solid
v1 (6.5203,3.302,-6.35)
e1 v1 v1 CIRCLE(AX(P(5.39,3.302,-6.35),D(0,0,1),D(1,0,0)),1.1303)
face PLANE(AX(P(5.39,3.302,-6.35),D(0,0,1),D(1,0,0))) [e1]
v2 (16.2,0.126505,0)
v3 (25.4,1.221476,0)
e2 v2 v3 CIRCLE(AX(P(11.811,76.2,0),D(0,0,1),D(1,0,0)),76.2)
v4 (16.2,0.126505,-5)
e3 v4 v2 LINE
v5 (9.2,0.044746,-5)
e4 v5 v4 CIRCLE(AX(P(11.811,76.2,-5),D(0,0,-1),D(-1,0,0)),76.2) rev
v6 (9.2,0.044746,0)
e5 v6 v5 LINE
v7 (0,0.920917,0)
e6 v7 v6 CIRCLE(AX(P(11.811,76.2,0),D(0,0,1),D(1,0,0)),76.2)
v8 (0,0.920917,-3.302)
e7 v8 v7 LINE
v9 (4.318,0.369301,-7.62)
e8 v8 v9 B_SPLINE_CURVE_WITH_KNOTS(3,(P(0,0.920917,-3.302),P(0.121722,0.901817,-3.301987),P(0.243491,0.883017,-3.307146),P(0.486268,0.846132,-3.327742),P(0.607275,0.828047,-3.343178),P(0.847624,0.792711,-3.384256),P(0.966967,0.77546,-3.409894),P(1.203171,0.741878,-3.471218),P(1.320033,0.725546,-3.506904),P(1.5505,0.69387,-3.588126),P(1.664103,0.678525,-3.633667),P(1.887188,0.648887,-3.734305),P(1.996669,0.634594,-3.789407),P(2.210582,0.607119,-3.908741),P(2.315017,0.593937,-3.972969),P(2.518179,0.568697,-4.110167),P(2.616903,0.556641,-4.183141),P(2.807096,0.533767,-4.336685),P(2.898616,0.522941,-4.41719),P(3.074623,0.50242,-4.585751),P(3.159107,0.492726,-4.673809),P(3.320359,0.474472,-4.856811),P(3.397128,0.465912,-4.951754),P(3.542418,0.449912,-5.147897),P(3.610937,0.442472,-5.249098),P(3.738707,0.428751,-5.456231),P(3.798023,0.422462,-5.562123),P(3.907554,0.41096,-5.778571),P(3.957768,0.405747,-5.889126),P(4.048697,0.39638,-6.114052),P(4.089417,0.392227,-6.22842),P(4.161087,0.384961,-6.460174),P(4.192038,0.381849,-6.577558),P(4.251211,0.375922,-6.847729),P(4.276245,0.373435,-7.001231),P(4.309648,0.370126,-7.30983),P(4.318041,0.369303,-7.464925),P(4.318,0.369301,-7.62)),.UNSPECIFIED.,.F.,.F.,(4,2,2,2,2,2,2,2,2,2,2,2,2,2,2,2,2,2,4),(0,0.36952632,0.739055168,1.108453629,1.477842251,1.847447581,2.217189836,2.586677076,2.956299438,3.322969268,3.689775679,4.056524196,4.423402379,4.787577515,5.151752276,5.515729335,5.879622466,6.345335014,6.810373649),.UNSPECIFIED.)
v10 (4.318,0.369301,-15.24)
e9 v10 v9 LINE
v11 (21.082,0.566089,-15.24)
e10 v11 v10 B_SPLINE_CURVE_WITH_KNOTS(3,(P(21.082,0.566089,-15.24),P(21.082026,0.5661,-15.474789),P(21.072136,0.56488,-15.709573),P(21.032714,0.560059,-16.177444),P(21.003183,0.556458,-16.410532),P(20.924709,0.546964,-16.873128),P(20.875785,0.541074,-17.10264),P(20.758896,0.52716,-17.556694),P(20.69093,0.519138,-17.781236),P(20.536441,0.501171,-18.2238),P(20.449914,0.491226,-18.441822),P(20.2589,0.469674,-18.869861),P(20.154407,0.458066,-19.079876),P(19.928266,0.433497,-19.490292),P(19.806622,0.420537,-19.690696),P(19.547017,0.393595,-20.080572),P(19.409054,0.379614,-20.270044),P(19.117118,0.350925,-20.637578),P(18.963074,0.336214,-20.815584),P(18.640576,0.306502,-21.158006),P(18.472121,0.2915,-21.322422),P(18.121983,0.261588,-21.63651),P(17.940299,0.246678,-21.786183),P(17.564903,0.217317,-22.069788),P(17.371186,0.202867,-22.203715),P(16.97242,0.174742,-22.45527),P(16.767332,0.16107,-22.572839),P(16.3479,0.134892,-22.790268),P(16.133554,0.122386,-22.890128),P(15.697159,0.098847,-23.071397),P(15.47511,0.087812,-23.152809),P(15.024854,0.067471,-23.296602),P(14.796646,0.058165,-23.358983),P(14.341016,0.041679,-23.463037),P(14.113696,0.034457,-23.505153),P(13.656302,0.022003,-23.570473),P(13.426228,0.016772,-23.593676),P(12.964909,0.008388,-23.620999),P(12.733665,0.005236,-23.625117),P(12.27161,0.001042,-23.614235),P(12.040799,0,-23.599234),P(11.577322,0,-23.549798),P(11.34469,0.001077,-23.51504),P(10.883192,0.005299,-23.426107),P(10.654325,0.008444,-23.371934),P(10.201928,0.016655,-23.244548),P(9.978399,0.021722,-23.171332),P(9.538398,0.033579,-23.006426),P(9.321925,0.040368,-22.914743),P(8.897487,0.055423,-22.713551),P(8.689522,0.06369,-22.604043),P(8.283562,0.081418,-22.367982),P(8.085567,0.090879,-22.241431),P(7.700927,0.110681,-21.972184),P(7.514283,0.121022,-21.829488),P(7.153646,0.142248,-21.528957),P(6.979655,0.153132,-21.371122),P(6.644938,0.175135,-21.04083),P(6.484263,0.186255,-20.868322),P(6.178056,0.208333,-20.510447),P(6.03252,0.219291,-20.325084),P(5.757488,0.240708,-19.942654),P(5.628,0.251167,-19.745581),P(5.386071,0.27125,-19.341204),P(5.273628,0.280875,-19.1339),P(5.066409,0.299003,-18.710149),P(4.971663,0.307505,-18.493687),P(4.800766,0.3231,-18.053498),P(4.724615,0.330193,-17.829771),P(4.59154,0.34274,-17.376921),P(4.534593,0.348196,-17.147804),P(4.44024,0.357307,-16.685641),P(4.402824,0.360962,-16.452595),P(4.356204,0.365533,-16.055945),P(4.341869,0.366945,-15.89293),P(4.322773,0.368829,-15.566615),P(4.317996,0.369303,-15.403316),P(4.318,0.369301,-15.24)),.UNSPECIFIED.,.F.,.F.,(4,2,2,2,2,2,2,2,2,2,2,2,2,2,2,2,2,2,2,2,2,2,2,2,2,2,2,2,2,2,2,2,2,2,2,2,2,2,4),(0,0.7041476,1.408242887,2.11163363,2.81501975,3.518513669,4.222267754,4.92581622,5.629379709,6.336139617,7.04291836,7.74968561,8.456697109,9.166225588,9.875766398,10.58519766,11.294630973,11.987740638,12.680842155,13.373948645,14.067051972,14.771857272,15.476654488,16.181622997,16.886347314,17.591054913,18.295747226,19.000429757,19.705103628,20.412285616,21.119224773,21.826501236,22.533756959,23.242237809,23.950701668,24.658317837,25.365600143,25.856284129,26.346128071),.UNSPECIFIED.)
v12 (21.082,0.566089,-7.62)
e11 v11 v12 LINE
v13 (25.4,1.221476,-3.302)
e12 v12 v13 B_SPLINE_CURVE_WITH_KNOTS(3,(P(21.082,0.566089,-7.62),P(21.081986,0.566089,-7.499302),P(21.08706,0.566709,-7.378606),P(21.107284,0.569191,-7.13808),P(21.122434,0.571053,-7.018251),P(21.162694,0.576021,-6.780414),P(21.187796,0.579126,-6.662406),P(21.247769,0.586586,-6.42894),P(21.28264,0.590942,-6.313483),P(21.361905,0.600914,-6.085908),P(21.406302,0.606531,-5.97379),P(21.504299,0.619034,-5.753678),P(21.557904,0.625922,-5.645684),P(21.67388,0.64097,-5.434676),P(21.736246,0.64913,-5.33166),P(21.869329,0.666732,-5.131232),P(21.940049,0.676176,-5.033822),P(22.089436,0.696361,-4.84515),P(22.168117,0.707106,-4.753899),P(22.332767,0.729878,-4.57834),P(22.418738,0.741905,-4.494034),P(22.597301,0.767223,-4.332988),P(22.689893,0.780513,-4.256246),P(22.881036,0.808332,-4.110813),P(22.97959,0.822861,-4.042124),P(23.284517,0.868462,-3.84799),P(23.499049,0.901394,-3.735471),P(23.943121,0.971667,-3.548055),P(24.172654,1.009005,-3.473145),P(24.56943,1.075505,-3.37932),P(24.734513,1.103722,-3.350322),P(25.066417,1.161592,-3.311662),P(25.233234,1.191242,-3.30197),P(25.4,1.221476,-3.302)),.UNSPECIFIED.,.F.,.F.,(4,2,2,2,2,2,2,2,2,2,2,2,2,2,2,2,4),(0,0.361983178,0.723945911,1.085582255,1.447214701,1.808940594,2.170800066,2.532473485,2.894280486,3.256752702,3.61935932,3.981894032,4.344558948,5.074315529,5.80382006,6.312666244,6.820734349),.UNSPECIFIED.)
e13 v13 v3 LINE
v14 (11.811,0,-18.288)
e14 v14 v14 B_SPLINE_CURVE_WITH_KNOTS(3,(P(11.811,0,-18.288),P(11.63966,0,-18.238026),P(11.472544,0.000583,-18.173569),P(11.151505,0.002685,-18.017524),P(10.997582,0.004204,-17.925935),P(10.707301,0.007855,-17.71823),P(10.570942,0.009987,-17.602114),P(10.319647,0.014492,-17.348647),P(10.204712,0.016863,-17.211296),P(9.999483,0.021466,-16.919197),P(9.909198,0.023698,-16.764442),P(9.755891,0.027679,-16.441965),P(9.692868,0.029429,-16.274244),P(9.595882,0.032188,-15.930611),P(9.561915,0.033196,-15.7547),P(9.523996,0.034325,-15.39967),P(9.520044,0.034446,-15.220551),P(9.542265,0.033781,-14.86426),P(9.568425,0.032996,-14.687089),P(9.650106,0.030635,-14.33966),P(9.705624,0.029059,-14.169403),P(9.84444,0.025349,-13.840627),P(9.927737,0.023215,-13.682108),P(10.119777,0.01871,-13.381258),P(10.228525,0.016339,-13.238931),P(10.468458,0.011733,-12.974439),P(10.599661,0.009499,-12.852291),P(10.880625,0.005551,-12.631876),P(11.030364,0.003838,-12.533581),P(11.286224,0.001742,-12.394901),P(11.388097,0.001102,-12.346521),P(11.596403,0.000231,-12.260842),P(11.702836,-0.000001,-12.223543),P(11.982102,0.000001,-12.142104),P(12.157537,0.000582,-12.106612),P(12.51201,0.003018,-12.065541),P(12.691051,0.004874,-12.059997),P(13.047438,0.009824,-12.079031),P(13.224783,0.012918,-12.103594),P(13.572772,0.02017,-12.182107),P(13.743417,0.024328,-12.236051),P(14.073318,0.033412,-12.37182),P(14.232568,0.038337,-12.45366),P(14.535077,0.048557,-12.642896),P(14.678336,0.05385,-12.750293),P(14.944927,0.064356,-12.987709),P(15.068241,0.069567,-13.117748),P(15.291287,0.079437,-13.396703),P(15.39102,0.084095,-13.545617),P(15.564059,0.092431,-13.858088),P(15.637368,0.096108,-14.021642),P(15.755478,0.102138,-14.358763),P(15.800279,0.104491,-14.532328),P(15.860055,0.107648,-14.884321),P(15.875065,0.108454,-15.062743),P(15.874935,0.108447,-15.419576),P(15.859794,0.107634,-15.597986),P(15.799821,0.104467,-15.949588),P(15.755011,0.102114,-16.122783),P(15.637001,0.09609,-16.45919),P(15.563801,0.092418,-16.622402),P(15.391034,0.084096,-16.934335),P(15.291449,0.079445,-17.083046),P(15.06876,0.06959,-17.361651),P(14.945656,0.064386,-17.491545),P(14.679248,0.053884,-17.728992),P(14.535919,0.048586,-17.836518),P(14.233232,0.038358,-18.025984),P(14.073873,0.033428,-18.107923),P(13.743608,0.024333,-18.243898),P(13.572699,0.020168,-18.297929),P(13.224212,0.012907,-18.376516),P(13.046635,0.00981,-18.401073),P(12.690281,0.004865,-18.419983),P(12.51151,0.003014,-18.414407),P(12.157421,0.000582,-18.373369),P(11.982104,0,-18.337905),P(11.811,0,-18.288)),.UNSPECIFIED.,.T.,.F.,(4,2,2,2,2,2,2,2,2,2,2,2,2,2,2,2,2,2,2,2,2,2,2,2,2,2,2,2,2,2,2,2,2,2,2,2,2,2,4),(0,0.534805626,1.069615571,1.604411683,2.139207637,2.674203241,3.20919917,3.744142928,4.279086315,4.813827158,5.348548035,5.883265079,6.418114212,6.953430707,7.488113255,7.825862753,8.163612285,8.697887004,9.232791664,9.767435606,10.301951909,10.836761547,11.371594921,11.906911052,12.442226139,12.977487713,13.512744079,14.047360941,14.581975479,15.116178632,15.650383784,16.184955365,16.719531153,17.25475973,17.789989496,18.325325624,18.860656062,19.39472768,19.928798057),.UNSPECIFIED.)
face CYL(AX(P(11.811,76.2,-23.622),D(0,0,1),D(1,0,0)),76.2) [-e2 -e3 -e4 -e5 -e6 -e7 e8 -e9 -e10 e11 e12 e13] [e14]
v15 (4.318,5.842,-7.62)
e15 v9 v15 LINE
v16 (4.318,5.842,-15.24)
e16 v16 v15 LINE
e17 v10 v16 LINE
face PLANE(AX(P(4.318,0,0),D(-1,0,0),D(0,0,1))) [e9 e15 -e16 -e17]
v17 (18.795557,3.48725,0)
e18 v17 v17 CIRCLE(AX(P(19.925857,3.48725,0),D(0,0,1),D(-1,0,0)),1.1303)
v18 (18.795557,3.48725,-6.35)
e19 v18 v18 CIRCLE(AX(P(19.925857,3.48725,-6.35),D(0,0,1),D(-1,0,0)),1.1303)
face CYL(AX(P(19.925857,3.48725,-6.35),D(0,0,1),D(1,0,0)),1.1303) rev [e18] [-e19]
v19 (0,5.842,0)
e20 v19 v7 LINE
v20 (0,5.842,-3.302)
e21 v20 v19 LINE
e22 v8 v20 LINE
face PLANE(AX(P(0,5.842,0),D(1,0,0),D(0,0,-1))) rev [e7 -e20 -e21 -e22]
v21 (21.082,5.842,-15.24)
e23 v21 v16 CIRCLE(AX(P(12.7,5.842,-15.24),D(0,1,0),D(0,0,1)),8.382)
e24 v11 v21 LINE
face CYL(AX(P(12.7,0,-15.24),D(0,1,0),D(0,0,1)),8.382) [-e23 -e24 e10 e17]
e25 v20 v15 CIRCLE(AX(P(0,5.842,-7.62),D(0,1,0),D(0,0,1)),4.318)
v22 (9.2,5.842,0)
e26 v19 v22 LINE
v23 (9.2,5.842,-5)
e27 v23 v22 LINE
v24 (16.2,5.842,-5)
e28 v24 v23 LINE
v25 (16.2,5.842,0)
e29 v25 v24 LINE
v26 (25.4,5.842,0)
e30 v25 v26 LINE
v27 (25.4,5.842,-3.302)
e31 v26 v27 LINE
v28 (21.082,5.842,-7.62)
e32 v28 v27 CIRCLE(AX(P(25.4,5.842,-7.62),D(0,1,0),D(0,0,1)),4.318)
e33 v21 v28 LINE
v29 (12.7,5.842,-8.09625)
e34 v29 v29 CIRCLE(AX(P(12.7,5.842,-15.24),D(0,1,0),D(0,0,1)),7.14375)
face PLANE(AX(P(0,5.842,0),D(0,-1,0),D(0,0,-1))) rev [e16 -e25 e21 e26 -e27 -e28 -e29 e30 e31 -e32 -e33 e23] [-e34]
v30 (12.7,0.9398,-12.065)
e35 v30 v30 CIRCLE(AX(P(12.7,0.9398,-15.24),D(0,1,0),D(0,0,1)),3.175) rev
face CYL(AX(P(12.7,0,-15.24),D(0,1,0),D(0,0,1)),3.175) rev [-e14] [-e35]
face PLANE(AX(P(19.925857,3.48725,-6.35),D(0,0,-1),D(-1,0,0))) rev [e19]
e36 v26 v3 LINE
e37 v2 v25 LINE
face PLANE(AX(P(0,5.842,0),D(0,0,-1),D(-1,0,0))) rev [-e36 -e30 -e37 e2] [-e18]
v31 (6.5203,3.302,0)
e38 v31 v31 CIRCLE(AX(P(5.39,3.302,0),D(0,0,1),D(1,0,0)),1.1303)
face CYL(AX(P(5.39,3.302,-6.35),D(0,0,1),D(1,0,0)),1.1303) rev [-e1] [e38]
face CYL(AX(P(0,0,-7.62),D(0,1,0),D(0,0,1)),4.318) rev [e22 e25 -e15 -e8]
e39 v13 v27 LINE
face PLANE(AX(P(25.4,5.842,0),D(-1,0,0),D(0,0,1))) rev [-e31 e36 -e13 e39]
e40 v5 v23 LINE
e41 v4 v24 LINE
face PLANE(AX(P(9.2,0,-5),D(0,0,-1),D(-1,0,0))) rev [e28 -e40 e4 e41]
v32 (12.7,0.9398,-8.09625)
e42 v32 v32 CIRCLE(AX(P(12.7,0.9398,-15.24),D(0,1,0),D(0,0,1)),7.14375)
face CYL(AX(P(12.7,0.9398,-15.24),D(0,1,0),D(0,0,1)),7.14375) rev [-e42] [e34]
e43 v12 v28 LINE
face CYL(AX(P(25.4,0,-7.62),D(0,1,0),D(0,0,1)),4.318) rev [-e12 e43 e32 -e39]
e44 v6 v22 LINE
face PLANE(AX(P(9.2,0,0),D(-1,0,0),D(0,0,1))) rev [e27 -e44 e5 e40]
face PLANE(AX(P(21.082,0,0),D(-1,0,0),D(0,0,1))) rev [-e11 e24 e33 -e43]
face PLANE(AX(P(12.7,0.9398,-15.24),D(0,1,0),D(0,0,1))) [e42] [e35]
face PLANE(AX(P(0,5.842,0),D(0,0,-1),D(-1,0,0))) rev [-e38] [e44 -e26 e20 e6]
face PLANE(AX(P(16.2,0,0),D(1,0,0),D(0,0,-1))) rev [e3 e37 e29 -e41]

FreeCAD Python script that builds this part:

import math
import FreeCAD as App
import Part
import Sketcher
from FreeCAD import Vector
Q = App.Units.Quantity

doc = App.newDocument("Part")
body = doc.addObject("PartDesign::Body", "Body")

# Sketch on XZ plane
sketch1 = body.newObject("Sketcher::SketchObject", "Sketch")
sketch1.AttachmentSupport = (doc.getObject("XZ_Plane"), [""])
sketch1.MapMode = "FlatFace"
sketch1.addGeometry([
    Part.LineSegment(Vector(0, -24, 0), Vector(0, 0, 0)),
    Part.LineSegment(Vector(0, 0, 0), Vector(25, 0, 0)),
    Part.LineSegment(Vector(25, 0, 0), Vector(25, -24, 0)),
    Part.LineSegment(Vector(25, -24, 0), Vector(0, -24, 0)),
], False)
sketch1.addConstraint([
    Sketcher.Constraint("Coincident", 0, 2, 1, 1),
    Sketcher.Constraint("Coincident", 1, 2, 2, 1),
    Sketcher.Constraint("Coincident", 2, 2, 3, 1),
    Sketcher.Constraint("Coincident", 3, 2, 0, 1),
    Sketcher.Constraint("Vertical", 0),
    Sketcher.Constraint("Horizontal", 1),
    Sketcher.Constraint("Vertical", 2),
    Sketcher.Constraint("Horizontal", 3),
    Sketcher.Constraint("Coincident", 0, 2, -1, 1),
    Sketcher.Constraint("DistanceX", 1, 1, 1, 2, Q("1 in")),
    Sketcher.Constraint("DistanceY", 0, 1, 0, 2, Q("0.93 in")),
])
pad1 = body.newObject("PartDesign::Pad", "Pad")
pad1.Profile = sketch1
pad1.Length = Q("0.23 in")
pad1.Reversed = True

# Sketch on XZ plane
sketch2 = body.newObject("Sketcher::SketchObject", "Sketch001")
sketch2.AttachmentSupport = (doc.getObject("XZ_Plane"), [""])
sketch2.MapMode = "FlatFace"
sketch2.AttachmentOffset = App.Placement(Vector(0, 0, -0.23 * 25.4), App.Rotation())
sketch2.addGeometry(Part.Circle(Vector(12.7, -15.2, 0), Vector(0, 0, 1), 3.2), False)
sketch2.addConstraint([
    Sketcher.Constraint("Diameter", 0, Q("0.25 in")),
    Sketcher.Constraint("DistanceX", -1, 1, 0, 3, Q("0.5 in")),
    Sketcher.Constraint("DistanceY", 0, 3, -1, 1, Q("0.6 in")),
])
pocket1 = body.newObject("PartDesign::Pocket", "Pocket")
pocket1.Profile = sketch2
pocket1.Type = "ThroughAll"
pocket1.Reversed = True

# Sketch on XZ plane
sketch3 = body.newObject("Sketcher::SketchObject", "Sketch002")
sketch3.AttachmentSupport = (doc.getObject("XZ_Plane"), [""])
sketch3.MapMode = "FlatFace"
sketch3.AttachmentOffset = App.Placement(Vector(0, 0, -0.23 * 25.4), App.Rotation())
sketch3.addGeometry(Part.Circle(Vector(13, -15, 0), Vector(0, 0, 1), 7), False)
sketch3.addConstraint([
    Sketcher.Constraint("Diameter", 0, Q("0.5625 in")),
    Sketcher.Constraint("DistanceX", -1, 1, 0, 3, Q("0.5 in")),
    Sketcher.Constraint("DistanceY", 0, 3, -1, 1, Q("0.6 in")),
])
pocket2 = body.newObject("PartDesign::Pocket", "Pocket001")
pocket2.Profile = sketch3
pocket2.Length = Q("0.193 in")
pocket2.Reversed = True

# Sketch on XZ plane
sketch4 = body.newObject("Sketcher::SketchObject", "Sketch003")
sketch4.AttachmentSupport = (doc.getObject("XZ_Plane"), [""])
sketch4.MapMode = "FlatFace"
sketch4.AttachmentOffset = App.Placement(Vector(0, 0, -0.23 * 25.4), App.Rotation())
sketch4.addGeometry([
    Part.ArcOfCircle(Part.Circle(Vector(12.7, -15.2, 0), Vector(0, 0, 1), 8.4), math.radians(180), math.radians(270)),  # 0
    Part.LineSegment(Vector(12.7, -23.6, 0), Vector(0, -23.6, 0)),  # 1
    Part.LineSegment(Vector(0, -23.6, 0), Vector(0, -3.3, 0)),  # 2
    Part.ArcOfCircle(Part.Circle(Vector(0, -7.6, 0), Vector(0, 0, 1), 4.3), math.radians(0), math.radians(90)),  # 3
    Part.LineSegment(Vector(4.3, -7.6, 0), Vector(4.3, -15.2, 0)),  # 4
    Part.ArcOfCircle(Part.Circle(Vector(12.7, -15.2, 0), Vector(0, 0, 1), 8.4), math.radians(-90), math.radians(0)),  # 5
    Part.LineSegment(Vector(21.1, -15.2, 0), Vector(21.1, -7.6, 0)),  # 6
    Part.ArcOfCircle(Part.Circle(Vector(25.4, -7.6, 0), Vector(0, 0, 1), 4.3), math.radians(90), math.radians(180)),  # 7
    Part.LineSegment(Vector(25.4, -3.3, 0), Vector(25.4, -23.6, 0)),  # 8
    Part.LineSegment(Vector(25.4, -23.6, 0), Vector(12.7, -23.6, 0)),  # 9
], False)
sketch4.addConstraint([
    Sketcher.Constraint("Tangent", 0, 2, 1, 1),
    Sketcher.Constraint("Coincident", 1, 2, 2, 1),
    Sketcher.Constraint("Coincident", 2, 2, 3, 2),
    Sketcher.Constraint("Tangent", 3, 1, 4, 1),
    Sketcher.Constraint("Tangent", 4, 2, 0, 1),
    Sketcher.Constraint("Tangent", 5, 2, 6, 1),
    Sketcher.Constraint("Tangent", 6, 2, 7, 2),
    Sketcher.Constraint("Coincident", 7, 1, 8, 1),
    Sketcher.Constraint("Coincident", 8, 2, 9, 1),
    Sketcher.Constraint("Tangent", 9, 2, 5, 1),
    Sketcher.Constraint("Horizontal", 1),
    Sketcher.Constraint("Vertical", 2),
    Sketcher.Constraint("Vertical", 4),
    Sketcher.Constraint("Vertical", 6),
    Sketcher.Constraint("Vertical", 8),
    Sketcher.Constraint("Horizontal", 9),
    Sketcher.Constraint("Coincident", 5, 3, 0, 3),
    Sketcher.Constraint("Equal", 0, 5),
    Sketcher.Constraint("Equal", 3, 7),
    Sketcher.Constraint("PointOnObject", 3, 3, -2),
    Sketcher.Constraint("PointOnObject", 1, 2, -2),
    Sketcher.Constraint("Horizontal", 3, 3, 7, 3),
    Sketcher.Constraint("Equal", 1, 9),
    Sketcher.Constraint("Radius", 0, Q("0.33 in")),
    Sketcher.Constraint("Radius", 3, Q("0.17 in")),
    Sketcher.Constraint("DistanceY", 2, 1, 2, 2, Q("0.8 in")),
    Sketcher.Constraint("DistanceY", 0, 3, -1, 1, Q("0.6 in")),
])
pocket3 = body.newObject("PartDesign::Pocket", "Pocket002")
pocket3.Profile = sketch4
pocket3.Type = "ThroughAll"
pocket3.Reversed = True

# Sketch on XY plane
sketch5 = body.newObject("Sketcher::SketchObject", "Sketch004")
sketch5.AttachmentSupport = (doc.getObject("XY_Plane"), [""])
sketch5.MapMode = "FlatFace"
sketch5.addGeometry([
    Part.LineSegment(Vector(0, 0.9, 0), Vector(0, 0, 0)),  # 0
    Part.LineSegment(Vector(0, 0, 0), Vector(11.8, 0, 0)),  # 1
    Part.ArcOfCircle(Part.Circle(Vector(11.8, 76.2, 0), Vector(0, 0, 1), 76.2), math.radians(-98.92), math.radians(-90)),  # 2
    Part.ArcOfCircle(Part.Circle(Vector(11.8, 76.2, 0), Vector(0, 0, 1), 76.2), math.radians(-90), math.radians(-79.73)),  # 3
    Part.LineSegment(Vector(11.8, 0, 0), Vector(25.4, 0, 0)),  # 4
    Part.LineSegment(Vector(25.4, 0, 0), Vector(25.4, 1.2, 0)),  # 5
], False)
sketch5.addConstraint([
    Sketcher.Constraint("Coincident", 0, 2, 1, 1),
    Sketcher.Constraint("Tangent", 1, 2, 2, 2),
    Sketcher.Constraint("Coincident", 2, 1, 0, 1),
    Sketcher.Constraint("Tangent", 3, 1, 4, 1),
    Sketcher.Constraint("Coincident", 4, 2, 5, 1),
    Sketcher.Constraint("Coincident", 5, 2, 3, 2),
    Sketcher.Constraint("Vertical", 0),
    Sketcher.Constraint("Horizontal", 1),
    Sketcher.Constraint("Horizontal", 4),
    Sketcher.Constraint("Vertical", 5),
    Sketcher.Constraint("Coincident", 0, 2, -1, 1),
    Sketcher.Constraint("Coincident", 3, 3, 2, 3),
    Sketcher.Constraint("Equal", 2, 3),
    Sketcher.Constraint("Radius", 2, Q("3 in")),
    Sketcher.Constraint("DistanceX", -1, 1, 4, 2, Q("1 in")),
    Sketcher.Constraint("DistanceX", 1, 1, 1, 2, Q("0.465 in")),
])
pocket4 = body.newObject("PartDesign::Pocket", "Pocket003")
pocket4.Profile = sketch5
pocket4.Type = "ThroughAll"

# Sketch on XZ plane
sketch6 = body.newObject("Sketcher::SketchObject", "Sketch005")
sketch6.AttachmentSupport = (doc.getObject("XZ_Plane"), [""])
sketch6.MapMode = "FlatFace"
sketch6.AttachmentOffset = App.Placement(Vector(0, 0, -0.23 * 25.4), App.Rotation())
sketch6.addGeometry([
    Part.LineSegment(Vector(9, -5, 0), Vector(9, 0, 0)),
    Part.LineSegment(Vector(9, 0, 0), Vector(16, 0, 0)),
    Part.LineSegment(Vector(16, 0, 0), Vector(16, -5, 0)),
    Part.LineSegment(Vector(16, -5, 0), Vector(9, -5, 0)),
], False)
sketch6.addConstraint([
    Sketcher.Constraint("Coincident", 0, 2, 1, 1),
    Sketcher.Constraint("Coincident", 1, 2, 2, 1),
    Sketcher.Constraint("Coincident", 2, 2, 3, 1),
    Sketcher.Constraint("Coincident", 3, 2, 0, 1),
    Sketcher.Constraint("Vertical", 0),
    Sketcher.Constraint("Horizontal", 1),
    Sketcher.Constraint("Vertical", 2),
    Sketcher.Constraint("Horizontal", 3),
    Sketcher.Constraint("PointOnObject", 0, 2, -1),
    Sketcher.Constraint("DistanceX", 1, 1, 1, 2, Q("7 mm")),
    Sketcher.Constraint("DistanceY", 0, 1, 0, 2, Q("5 mm")),
    Sketcher.Constraint("DistanceX", -1, 1, 0, 2, Q("9.2 mm")),
])
pocket5 = body.newObject("PartDesign::Pocket", "Pocket004")
pocket5.Profile = sketch6
pocket5.Type = "ThroughAll"
pocket5.Reversed = True

# Sketch on XY plane
sketch7 = body.newObject("Sketcher::SketchObject", "Sketch006")
sketch7.AttachmentSupport = (doc.getObject("XY_Plane"), [""])
sketch7.MapMode = "FlatFace"
sketch7.addGeometry([
    Part.Circle(Vector(5.4, 3.3, 0), Vector(0, 0, 1), 1.1),
    Part.Circle(Vector(19.9, 3.5, 0), Vector(0, 0, 1), 1.1),
], False)
sketch7.addConstraint([
    Sketcher.Constraint("Equal", 0, 1),
    Sketcher.Constraint("Diameter", 0, Q("0.089 in")),
    Sketcher.Constraint("DistanceY", -1, 1, 0, 3, Q("0.13 in")),
    Sketcher.Constraint("DistanceX", -1, 1, 0, 3, Q("5.39 mm")),
    Sketcher.Constraint("DistanceY", -1, 1, 1, 3, Q("3.48725 mm")),
    Sketcher.Constraint("DistanceX", -1, 1, 1, 3, Q("19.925857 mm")),
])
pocket6 = body.newObject("PartDesign::Pocket", "Pocket005")
pocket6.Profile = sketch7
pocket6.Length = Q("0.25 in")

doc.recompute()
